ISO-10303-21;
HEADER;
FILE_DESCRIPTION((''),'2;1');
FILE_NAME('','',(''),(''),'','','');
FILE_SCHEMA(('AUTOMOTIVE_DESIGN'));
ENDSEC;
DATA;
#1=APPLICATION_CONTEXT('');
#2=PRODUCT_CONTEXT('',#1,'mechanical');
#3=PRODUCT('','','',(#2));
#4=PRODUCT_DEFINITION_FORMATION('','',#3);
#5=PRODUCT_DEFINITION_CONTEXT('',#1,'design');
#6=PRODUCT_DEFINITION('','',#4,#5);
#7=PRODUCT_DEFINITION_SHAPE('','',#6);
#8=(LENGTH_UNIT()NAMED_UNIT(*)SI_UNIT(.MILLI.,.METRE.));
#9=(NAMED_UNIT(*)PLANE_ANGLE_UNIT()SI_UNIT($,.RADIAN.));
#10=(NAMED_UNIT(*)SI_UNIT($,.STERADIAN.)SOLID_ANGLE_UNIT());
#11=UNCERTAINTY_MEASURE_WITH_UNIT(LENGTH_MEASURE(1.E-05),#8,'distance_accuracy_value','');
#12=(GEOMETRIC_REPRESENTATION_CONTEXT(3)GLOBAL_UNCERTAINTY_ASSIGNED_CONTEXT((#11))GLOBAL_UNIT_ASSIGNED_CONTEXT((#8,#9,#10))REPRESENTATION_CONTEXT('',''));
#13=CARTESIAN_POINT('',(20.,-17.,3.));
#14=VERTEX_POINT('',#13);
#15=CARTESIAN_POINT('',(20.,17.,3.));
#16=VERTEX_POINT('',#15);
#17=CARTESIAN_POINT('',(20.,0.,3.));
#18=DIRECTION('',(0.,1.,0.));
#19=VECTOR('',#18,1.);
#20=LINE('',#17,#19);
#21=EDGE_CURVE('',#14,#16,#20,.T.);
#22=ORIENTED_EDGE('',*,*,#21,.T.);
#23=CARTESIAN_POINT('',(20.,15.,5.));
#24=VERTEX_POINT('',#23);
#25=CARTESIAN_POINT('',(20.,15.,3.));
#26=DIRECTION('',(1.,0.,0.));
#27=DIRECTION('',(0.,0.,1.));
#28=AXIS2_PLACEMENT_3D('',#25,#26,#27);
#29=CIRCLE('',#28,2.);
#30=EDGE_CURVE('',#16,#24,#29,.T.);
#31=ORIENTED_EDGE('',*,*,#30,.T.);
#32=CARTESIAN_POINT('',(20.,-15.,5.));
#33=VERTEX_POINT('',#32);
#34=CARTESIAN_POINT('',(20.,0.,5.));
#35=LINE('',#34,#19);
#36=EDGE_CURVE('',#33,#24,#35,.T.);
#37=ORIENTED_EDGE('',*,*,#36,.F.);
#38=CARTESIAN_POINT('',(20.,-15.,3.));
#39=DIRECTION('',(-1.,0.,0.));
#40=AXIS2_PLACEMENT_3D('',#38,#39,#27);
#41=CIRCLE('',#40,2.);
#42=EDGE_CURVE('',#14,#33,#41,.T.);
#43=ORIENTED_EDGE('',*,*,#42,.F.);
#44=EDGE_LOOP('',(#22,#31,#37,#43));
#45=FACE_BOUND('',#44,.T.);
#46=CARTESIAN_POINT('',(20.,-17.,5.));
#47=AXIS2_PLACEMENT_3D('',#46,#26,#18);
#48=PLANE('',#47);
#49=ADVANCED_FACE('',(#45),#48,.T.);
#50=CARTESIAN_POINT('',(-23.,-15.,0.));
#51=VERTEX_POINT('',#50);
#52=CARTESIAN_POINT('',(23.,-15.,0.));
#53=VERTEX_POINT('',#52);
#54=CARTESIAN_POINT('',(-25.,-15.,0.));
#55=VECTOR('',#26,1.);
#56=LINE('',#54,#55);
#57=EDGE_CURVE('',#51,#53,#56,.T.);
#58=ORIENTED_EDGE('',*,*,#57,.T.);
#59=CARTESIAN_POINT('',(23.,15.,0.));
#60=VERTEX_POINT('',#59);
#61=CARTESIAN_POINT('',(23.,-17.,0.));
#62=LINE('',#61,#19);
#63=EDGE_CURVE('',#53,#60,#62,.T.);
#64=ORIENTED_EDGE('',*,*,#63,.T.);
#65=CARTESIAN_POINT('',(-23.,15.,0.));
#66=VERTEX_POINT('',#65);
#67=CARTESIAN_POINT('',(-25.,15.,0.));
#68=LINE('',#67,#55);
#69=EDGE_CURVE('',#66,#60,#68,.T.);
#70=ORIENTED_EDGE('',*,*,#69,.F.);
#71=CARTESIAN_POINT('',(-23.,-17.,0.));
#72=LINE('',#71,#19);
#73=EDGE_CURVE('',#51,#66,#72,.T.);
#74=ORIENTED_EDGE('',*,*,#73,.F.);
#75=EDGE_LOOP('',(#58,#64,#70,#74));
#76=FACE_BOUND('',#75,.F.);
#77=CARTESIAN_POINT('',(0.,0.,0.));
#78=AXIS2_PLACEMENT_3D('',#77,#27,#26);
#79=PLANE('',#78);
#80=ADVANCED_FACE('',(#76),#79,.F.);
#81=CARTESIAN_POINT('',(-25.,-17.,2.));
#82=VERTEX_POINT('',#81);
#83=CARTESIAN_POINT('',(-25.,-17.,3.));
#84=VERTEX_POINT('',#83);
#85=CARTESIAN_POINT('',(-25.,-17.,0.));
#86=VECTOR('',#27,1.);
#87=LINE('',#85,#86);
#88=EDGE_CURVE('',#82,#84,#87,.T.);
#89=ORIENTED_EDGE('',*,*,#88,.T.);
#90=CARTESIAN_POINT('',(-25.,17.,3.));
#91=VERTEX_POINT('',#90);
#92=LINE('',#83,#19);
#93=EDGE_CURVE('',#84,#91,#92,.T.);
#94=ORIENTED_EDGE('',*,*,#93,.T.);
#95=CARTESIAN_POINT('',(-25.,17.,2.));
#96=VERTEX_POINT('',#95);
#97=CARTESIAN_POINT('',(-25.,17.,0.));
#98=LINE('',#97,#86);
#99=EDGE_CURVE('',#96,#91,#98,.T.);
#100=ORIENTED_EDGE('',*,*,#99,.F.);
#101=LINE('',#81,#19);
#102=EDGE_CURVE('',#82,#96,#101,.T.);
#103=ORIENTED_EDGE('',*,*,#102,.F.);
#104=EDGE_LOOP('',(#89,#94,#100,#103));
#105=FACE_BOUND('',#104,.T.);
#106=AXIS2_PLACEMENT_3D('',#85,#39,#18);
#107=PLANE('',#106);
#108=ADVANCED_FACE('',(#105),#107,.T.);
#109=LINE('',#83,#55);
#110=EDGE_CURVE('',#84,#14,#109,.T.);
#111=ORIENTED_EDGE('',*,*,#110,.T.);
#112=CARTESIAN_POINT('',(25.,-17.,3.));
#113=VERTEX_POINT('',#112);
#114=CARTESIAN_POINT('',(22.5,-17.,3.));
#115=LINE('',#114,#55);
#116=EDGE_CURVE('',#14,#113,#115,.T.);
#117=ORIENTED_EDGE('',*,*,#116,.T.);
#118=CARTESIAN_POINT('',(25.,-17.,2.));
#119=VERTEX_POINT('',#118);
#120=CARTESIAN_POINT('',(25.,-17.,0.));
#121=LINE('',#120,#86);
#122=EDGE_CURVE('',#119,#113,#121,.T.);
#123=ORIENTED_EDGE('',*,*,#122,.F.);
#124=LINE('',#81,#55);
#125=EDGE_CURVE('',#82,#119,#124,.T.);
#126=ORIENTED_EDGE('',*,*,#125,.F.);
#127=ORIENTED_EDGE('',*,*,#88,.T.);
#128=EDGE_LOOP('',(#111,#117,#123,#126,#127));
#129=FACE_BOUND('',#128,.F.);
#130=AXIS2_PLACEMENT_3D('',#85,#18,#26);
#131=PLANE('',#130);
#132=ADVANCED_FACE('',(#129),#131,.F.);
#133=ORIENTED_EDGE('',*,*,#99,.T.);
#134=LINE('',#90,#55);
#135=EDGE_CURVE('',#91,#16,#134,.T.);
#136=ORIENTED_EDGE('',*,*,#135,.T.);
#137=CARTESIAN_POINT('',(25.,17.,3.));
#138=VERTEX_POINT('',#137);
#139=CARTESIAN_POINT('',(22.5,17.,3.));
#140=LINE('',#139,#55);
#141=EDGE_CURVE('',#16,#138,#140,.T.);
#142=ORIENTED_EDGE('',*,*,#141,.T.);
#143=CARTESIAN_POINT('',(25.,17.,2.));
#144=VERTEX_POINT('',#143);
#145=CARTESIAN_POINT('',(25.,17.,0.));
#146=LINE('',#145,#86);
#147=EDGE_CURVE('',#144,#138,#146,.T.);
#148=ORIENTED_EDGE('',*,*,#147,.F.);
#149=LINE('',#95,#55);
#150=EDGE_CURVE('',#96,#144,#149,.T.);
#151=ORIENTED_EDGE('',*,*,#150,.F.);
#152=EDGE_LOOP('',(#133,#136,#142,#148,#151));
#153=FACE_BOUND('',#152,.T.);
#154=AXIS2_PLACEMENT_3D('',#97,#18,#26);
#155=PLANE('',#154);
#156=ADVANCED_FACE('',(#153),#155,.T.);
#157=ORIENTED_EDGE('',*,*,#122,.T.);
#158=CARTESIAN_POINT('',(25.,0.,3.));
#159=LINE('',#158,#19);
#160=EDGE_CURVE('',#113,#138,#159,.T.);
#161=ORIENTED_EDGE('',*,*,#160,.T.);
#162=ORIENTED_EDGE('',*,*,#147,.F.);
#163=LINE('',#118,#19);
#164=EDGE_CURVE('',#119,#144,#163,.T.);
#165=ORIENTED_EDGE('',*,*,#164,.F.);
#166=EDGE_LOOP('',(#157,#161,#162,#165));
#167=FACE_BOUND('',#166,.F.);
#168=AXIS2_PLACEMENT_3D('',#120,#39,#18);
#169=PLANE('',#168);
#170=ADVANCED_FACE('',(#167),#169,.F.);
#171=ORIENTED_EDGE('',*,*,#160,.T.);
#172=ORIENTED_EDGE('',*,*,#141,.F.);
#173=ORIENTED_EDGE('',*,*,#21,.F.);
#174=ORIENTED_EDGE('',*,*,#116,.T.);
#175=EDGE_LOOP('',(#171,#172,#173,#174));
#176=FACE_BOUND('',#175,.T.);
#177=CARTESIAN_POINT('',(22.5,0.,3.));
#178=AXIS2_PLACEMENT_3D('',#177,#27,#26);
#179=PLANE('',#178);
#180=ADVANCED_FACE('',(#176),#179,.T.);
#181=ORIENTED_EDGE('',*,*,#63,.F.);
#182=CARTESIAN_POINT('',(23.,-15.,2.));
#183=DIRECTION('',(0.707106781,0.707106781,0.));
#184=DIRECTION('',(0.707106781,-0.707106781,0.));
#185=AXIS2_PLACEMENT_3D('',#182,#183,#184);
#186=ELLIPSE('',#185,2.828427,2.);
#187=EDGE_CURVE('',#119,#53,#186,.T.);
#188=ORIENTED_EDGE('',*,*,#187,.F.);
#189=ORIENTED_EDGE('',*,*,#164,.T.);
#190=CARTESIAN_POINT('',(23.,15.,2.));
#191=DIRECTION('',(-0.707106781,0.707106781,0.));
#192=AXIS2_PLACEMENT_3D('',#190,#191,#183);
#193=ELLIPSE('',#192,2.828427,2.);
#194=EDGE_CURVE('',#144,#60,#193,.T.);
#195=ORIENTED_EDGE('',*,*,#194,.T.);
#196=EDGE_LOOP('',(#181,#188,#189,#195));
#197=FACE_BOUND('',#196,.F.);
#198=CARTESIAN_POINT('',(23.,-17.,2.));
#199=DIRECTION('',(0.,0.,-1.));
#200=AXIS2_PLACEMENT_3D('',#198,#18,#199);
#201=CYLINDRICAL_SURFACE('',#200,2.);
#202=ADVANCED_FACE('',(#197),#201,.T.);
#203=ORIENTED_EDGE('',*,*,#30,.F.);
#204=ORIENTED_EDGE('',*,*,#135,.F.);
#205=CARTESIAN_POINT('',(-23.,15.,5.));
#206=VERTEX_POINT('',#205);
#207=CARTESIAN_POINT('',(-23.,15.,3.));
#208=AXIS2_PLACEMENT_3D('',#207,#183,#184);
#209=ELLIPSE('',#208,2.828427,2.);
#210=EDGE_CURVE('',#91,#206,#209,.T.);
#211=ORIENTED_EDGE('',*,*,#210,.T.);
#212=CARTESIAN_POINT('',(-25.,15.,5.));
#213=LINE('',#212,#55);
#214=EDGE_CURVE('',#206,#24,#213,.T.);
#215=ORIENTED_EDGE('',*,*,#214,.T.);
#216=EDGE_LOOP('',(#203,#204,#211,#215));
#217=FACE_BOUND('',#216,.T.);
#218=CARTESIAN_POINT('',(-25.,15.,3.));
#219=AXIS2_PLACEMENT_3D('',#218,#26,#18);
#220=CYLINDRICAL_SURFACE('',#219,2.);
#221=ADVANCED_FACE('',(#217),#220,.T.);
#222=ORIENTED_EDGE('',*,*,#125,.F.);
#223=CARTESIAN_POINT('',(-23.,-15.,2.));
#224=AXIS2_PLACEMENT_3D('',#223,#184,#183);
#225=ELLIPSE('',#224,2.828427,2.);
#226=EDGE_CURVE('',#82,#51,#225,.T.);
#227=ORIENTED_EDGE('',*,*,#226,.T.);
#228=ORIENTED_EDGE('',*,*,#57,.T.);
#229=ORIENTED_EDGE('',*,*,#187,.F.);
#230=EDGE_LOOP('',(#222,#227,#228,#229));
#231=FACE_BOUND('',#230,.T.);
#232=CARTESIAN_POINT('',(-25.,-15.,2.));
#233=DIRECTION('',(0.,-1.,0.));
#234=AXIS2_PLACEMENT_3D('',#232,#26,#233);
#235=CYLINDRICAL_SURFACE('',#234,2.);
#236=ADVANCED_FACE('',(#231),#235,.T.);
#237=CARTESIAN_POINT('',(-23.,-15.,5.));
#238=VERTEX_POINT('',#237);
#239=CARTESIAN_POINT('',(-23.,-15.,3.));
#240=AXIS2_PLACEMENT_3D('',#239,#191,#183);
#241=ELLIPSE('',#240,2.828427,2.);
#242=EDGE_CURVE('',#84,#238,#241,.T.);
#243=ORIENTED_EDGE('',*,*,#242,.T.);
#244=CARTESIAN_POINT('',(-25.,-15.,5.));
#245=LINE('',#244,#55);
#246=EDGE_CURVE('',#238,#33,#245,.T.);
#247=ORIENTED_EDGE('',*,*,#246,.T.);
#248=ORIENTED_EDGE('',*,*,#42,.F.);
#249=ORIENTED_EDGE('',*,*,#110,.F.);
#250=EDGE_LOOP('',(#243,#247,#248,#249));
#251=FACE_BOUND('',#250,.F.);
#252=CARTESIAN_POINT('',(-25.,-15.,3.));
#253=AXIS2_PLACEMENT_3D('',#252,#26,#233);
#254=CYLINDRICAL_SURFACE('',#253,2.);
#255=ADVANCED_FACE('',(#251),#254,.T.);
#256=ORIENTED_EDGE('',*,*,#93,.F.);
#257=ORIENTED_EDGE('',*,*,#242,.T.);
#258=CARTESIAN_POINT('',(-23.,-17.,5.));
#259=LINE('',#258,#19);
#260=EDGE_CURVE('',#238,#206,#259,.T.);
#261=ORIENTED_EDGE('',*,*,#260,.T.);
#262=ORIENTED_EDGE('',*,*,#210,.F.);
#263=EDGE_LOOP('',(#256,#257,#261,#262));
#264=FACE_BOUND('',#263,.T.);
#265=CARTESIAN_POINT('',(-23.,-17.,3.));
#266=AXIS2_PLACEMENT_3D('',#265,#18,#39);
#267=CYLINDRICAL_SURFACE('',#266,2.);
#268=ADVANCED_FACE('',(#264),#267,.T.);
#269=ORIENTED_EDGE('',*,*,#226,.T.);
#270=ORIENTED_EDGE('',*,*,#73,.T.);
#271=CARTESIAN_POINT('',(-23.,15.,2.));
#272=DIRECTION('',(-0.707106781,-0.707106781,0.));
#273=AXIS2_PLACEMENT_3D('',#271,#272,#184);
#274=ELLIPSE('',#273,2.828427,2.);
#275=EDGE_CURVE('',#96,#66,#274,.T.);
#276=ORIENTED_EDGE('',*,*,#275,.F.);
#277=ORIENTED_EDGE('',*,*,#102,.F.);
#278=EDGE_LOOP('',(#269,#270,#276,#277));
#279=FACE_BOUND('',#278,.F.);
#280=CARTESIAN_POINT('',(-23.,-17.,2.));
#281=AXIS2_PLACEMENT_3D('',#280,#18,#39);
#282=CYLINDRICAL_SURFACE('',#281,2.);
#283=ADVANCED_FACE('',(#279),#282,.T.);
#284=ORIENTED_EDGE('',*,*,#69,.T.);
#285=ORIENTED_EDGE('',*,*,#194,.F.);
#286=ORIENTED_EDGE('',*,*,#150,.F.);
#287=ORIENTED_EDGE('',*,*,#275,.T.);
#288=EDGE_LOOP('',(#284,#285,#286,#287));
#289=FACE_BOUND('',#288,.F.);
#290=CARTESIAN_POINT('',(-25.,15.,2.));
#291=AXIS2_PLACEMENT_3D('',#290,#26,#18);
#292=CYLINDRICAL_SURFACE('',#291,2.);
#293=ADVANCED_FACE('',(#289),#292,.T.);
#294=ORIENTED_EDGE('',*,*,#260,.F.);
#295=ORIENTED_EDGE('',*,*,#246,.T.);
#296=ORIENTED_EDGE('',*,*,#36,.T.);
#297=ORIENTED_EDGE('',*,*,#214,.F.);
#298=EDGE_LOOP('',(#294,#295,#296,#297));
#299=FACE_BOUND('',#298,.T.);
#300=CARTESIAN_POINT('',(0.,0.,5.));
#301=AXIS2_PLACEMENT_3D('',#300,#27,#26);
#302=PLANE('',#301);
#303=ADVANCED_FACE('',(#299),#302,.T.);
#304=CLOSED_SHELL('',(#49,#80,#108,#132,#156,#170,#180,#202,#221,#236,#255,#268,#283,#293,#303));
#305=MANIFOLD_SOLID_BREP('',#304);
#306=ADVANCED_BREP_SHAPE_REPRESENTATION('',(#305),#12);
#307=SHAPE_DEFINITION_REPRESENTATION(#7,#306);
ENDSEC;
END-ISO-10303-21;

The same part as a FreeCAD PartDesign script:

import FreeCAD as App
import Part
import Sketcher
from FreeCAD import Vector
Q = App.Units.Quantity


def edges_at(feature, points):
    """Names of the edges that pass closest to the given points."""
    edges = feature.Shape.Edges
    near = lambda p: min(range(len(edges)), key=lambda i: edges[i].distToShape(Part.Vertex(*p))[0])
    return sorted({f"Edge{near(p) + 1}" for p in points})

doc = App.newDocument("Part")
body = doc.addObject("PartDesign::Body", "Body")

# Sketch on XY plane
sketch1 = body.newObject("Sketcher::SketchObject", "Sketch")
sketch1.AttachmentSupport = (doc.getObject("XY_Plane"), [""])
sketch1.MapMode = "FlatFace"
sketch1.addGeometry([
    Part.LineSegment(Vector(-25, 17, 0), Vector(-25, -17, 0)),
    Part.LineSegment(Vector(-25, -17, 0), Vector(25, -17, 0)),
    Part.LineSegment(Vector(25, -17, 0), Vector(25, 17, 0)),
    Part.LineSegment(Vector(25, 17, 0), Vector(-25, 17, 0)),
], False)
sketch1.addConstraint([
    Sketcher.Constraint("Coincident", 0, 2, 1, 1),
    Sketcher.Constraint("Coincident", 1, 2, 2, 1),
    Sketcher.Constraint("Coincident", 2, 2, 3, 1),
    Sketcher.Constraint("Coincident", 3, 2, 0, 1),
    Sketcher.Constraint("Vertical", 0),
    Sketcher.Constraint("Horizontal", 1),
    Sketcher.Constraint("Vertical", 2),
    Sketcher.Constraint("Horizontal", 3),
    Sketcher.Constraint("Symmetric", 0, 2, 2, 2, -1, 1),
    Sketcher.Constraint("DistanceX", 1, 1, 1, 2, Q("50 mm")),
    Sketcher.Constraint("DistanceY", 0, 2, 0, 1, Q("34 mm")),
])
pad1 = body.newObject("PartDesign::Pad", "Pad")
pad1.Profile = sketch1
pad1.Length = 5

# Sketch on XY plane
sketch2 = body.newObject("Sketcher::SketchObject", "Sketch001")
sketch2.AttachmentSupport = (doc.getObject("XY_Plane"), [""])
sketch2.MapMode = "FlatFace"
sketch2.AttachmentOffset = App.Placement(Vector(0, 0, 5), App.Rotation())
sketch2.addGeometry([
    Part.LineSegment(Vector(20, 17, 0), Vector(20, -17, 0)),
    Part.LineSegment(Vector(20, -17, 0), Vector(25, -17, 0)),
    Part.LineSegment(Vector(25, -17, 0), Vector(25, 17, 0)),
    Part.LineSegment(Vector(25, 17, 0), Vector(20, 17, 0)),
], False)
sketch2.addConstraint([
    Sketcher.Constraint("Coincident", 0, 2, 1, 1),
    Sketcher.Constraint("Coincident", 1, 2, 2, 1),
    Sketcher.Constraint("Coincident", 2, 2, 3, 1),
    Sketcher.Constraint("Coincident", 3, 2, 0, 1),
    Sketcher.Constraint("Vertical", 0),
    Sketcher.Constraint("Horizontal", 1),
    Sketcher.Constraint("Vertical", 2),
    Sketcher.Constraint("Horizontal", 3),
    Sketcher.Constraint("DistanceX", 1, 1, 1, 2, Q("5 mm")),
    Sketcher.Constraint("DistanceY", 0, 2, 0, 1, Q("34 mm")),
    Sketcher.Constraint("DistanceX", -1, 1, 0, 2, Q("20 mm")),
    Sketcher.Constraint("DistanceY", 0, 2, -1, 1, Q("17 mm")),
])
pocket1 = body.newObject("PartDesign::Pocket", "Pocket")
pocket1.Profile = sketch2
pocket1.Length = 2
doc.recompute()

fillet = body.newObject("PartDesign::Fillet", "Fillet")
fillet.Base = (pocket1, edges_at(pocket1, [
    (-2.5, 17, 5),
    (-2.5, -17, 5),
    (0, -17, 0),
    (0, 17, 0),
    (-25, 0, 0),
    (-25, 0, 5),
    (25, 0, 0),
]))
fillet.Radius = 2

doc.recompute()
